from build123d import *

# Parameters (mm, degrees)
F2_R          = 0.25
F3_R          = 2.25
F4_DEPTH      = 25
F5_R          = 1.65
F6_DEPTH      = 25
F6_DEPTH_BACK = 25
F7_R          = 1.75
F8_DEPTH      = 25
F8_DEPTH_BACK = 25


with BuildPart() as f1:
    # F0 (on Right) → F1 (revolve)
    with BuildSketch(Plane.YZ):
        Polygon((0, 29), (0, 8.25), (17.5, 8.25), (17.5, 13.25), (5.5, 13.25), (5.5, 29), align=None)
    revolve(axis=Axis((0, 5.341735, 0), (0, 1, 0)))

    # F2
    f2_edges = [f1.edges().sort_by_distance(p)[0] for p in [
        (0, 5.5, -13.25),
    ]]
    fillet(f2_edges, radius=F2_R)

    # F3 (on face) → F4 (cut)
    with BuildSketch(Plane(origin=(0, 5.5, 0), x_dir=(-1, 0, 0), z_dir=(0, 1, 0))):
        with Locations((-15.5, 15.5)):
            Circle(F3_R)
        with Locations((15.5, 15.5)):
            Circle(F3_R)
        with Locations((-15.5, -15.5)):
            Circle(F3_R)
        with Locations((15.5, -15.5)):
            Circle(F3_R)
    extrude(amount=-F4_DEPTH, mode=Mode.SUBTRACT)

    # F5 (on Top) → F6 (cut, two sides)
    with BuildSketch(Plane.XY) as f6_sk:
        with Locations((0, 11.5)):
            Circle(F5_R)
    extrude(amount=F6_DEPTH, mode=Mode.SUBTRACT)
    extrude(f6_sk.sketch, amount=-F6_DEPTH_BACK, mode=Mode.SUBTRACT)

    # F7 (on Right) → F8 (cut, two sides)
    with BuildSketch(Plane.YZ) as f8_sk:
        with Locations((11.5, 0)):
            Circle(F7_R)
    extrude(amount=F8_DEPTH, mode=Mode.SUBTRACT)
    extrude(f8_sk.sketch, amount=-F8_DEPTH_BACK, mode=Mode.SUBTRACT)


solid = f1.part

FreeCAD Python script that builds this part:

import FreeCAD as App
import Part
import Sketcher
Q = App.Units.Quantity


def edges_at(feature, points):
    """Names of the edges that pass closest to the given points."""
    edges = feature.Shape.Edges
    near = lambda p: min(range(len(edges)), key=lambda i: edges[i].distToShape(Part.Vertex(*p))[0])
    return sorted({f"Edge{near(p) + 1}" for p in points})


def add_polygon(sketch, points):
    """Adds a closed chain of lines whose ends are joined by coincident constraints."""
    first, n = sketch.GeometryCount, len(points)
    for a, b in zip(points, points[1:] + points[:1]):
        sketch.addGeometry(Part.LineSegment(App.Vector(*a, 0), App.Vector(*b, 0)), False)
    for i in range(n):
        sketch.addConstraint(Sketcher.Constraint("Coincident", first + i, 2, first + (i + 1) % n, 1))

doc = App.newDocument("Part")
body = doc.addObject("PartDesign::Body", "Body")

# Sketch on YZ plane
sketch1 = body.newObject("Sketcher::SketchObject", "Sketch")
sketch1.AttachmentSupport = (doc.getObject("YZ_Plane"), [""])
sketch1.MapMode = "FlatFace"
add_polygon(sketch1, [(0, 29), (0, 8), (18, 8), (18, 13), (6, 13), (6, 29)])  # lines 0-5
sketch1.addConstraint(Sketcher.Constraint("Vertical", 0))
sketch1.addConstraint(Sketcher.Constraint("Horizontal", 1))
sketch1.addConstraint(Sketcher.Constraint("Vertical", 2))
sketch1.addConstraint(Sketcher.Constraint("Horizontal", 3))
sketch1.addConstraint(Sketcher.Constraint("Vertical", 4))
sketch1.addConstraint(Sketcher.Constraint("Horizontal", 5))
sketch1.addConstraint(Sketcher.Constraint("PointOnObject", 0, 2, -2))
sketch1.addConstraint(Sketcher.Constraint("DistanceX", 3, 2, 3, 1, Q("12 mm")))
sketch1.addConstraint(Sketcher.Constraint("DistanceY", 2, 1, 2, 2, Q("5 mm")))
sketch1.addConstraint(Sketcher.Constraint("DistanceX", 1, 1, 1, 2, Q("17.5 mm")))
sketch1.addConstraint(Sketcher.Constraint("DistanceY", -1, 1, 4, 2, Q("29 mm")))
sketch1.addConstraint(Sketcher.Constraint("DistanceY", 0, 2, 0, 1, Q("20.75 mm")))
revolution = body.newObject("PartDesign::Revolution", "Revolution")
revolution.Profile = sketch1
revolution.ReferenceAxis = (sketch1, ["H_Axis"])
revolution.Angle = 360
doc.recompute()

fillet = body.newObject("PartDesign::Fillet", "Fillet")
fillet.Base = (revolution, edges_at(revolution, [(0, 5.5, -13.25)]))
fillet.Radius = 0.25

# Sketch on XZ plane
sketch2 = body.newObject("Sketcher::SketchObject", "Sketch001")
sketch2.AttachmentSupport = (doc.getObject("XZ_Plane"), [""])
sketch2.MapMode = "FlatFace"
sketch2.AttachmentOffset = App.Placement(App.Vector(0, 0, -5.5), App.Rotation())
sketch2.addGeometry(Part.Circle(App.Vector(15.5, 15.5, 0), App.Vector(0, 0, 1), 2.2), False)
sketch2.addGeometry(Part.Circle(App.Vector(-15.5, 15.5, 0), App.Vector(0, 0, 1), 2.2), False)
sketch2.addGeometry(Part.Circle(App.Vector(15.5, -15.5, 0), App.Vector(0, 0, 1), 2.2), False)
sketch2.addGeometry(Part.Circle(App.Vector(-15.5, -15.5, 0), App.Vector(0, 0, 1), 2.2), False)
sketch2.addConstraint(Sketcher.Constraint("Equal", 0, 1))
sketch2.addConstraint(Sketcher.Constraint("Equal", 1, 2))
sketch2.addConstraint(Sketcher.Constraint("Equal", 2, 3))
sketch2.addConstraint(Sketcher.Constraint("Symmetric", 1, 3, 2, 3, -1, 1))
sketch2.addConstraint(Sketcher.Constraint("Symmetric", 0, 3, 3, 3, -1, 1))
sketch2.addConstraint(Sketcher.Constraint("Symmetric", 0, 3, 1, 3, -2))
sketch2.addConstraint(Sketcher.Constraint("Diameter", 0, Q("4.5 mm")))
sketch2.addConstraint(Sketcher.Constraint("DistanceX", 1, 3, 0, 3, Q("31 mm")))
sketch2.addConstraint(Sketcher.Constraint("DistanceY", 2, 3, 0, 3, Q("31 mm")))
pocket1 = body.newObject("PartDesign::Pocket", "Pocket")
pocket1.Profile = sketch2
pocket1.Length = 25
pocket1.Reversed = True

# Sketch on XY plane
sketch3 = body.newObject("Sketcher::SketchObject", "Sketch002")
sketch3.AttachmentSupport = (doc.getObject("XY_Plane"), [""])
sketch3.MapMode = "FlatFace"
sketch3.addGeometry(Part.Circle(App.Vector(0, 11.5, 0), App.Vector(0, 0, 1), 1.6), False)
sketch3.addConstraint(Sketcher.Constraint("PointOnObject", 0, 3, -2))
sketch3.addConstraint(Sketcher.Constraint("Diameter", 0, Q("3.3 mm")))
sketch3.addConstraint(Sketcher.Constraint("DistanceY", -1, 1, 0, 3, Q("11.5 mm")))
pocket2 = body.newObject("PartDesign::Pocket", "Pocket001")
pocket2.Profile = sketch3
pocket2.Type = "ThroughAll"
pocket2.Midplane = True

# Sketch on YZ plane
sketch4 = body.newObject("Sketcher::SketchObject", "Sketch003")
sketch4.AttachmentSupport = (doc.getObject("YZ_Plane"), [""])
sketch4.MapMode = "FlatFace"
sketch4.addGeometry(Part.Circle(App.Vector(11.5, 0, 0), App.Vector(0, 0, 1), 1.8), False)
sketch4.addConstraint(Sketcher.Constraint("PointOnObject", 0, 3, -1))
sketch4.addConstraint(Sketcher.Constraint("Diameter", 0, Q("3.5 mm")))
sketch4.addConstraint(Sketcher.Constraint("DistanceX", -1, 1, 0, 3, Q("11.5 mm")))
pocket3 = body.newObject("PartDesign::Pocket", "Pocket002")
pocket3.Profile = sketch4
pocket3.Type = "ThroughAll"
pocket3.Midplane = True

doc.recompute()
